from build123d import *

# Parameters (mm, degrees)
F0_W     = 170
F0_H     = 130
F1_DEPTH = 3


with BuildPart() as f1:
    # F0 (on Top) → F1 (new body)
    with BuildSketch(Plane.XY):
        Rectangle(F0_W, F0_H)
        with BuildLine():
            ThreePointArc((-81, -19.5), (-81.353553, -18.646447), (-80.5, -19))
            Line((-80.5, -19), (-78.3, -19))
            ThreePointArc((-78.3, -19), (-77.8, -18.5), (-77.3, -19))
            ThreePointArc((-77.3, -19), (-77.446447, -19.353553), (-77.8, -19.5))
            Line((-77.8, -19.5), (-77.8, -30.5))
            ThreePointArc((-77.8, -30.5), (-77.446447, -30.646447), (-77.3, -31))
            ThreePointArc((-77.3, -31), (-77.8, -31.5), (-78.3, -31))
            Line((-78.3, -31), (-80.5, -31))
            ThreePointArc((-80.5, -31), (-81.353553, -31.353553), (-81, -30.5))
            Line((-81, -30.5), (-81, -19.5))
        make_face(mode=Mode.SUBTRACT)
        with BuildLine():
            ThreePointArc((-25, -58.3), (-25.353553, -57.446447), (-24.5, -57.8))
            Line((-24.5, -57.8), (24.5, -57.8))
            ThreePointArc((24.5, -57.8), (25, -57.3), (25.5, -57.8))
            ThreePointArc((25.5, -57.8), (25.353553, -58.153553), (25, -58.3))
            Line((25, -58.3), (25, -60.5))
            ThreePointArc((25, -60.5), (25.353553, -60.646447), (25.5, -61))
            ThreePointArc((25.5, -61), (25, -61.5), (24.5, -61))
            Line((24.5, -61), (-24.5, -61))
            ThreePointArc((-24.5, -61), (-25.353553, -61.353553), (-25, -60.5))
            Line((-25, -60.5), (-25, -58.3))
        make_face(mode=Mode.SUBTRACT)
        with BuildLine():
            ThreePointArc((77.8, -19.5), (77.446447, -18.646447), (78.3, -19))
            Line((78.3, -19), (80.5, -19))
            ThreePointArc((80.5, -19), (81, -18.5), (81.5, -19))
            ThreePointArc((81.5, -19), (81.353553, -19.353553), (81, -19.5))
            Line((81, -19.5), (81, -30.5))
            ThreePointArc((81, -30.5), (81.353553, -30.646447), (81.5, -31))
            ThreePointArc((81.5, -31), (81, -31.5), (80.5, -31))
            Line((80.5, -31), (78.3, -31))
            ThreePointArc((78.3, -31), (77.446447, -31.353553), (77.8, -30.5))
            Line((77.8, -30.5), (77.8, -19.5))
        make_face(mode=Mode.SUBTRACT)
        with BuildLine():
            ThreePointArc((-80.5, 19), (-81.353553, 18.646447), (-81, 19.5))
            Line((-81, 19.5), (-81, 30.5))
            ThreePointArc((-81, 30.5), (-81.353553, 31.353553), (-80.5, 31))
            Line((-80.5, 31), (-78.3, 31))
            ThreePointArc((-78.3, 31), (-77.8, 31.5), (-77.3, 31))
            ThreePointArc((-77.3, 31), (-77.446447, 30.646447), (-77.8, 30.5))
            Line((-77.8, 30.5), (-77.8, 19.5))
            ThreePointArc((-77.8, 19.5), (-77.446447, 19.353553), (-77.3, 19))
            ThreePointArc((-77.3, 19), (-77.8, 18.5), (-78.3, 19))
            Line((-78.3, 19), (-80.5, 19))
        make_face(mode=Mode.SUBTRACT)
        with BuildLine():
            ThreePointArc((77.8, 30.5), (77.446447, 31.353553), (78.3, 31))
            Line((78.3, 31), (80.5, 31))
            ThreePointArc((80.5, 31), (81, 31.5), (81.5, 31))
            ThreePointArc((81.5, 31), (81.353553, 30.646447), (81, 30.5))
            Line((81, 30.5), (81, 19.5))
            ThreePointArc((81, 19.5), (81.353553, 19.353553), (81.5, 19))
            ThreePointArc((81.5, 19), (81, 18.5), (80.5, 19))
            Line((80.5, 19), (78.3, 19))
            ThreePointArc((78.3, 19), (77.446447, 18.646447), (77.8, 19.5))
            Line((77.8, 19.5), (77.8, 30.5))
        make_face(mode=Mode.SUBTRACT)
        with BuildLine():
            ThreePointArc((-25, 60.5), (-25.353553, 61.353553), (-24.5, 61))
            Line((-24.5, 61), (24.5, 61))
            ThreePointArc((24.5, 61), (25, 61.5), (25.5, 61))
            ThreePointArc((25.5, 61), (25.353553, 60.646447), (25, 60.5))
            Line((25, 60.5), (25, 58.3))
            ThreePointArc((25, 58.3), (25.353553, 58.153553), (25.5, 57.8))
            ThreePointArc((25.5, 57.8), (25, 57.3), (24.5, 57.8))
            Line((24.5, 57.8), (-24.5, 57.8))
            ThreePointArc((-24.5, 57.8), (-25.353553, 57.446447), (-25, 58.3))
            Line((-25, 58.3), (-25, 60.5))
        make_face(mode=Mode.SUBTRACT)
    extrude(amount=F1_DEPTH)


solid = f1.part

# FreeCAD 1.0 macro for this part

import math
import FreeCAD as App
import Part
import Sketcher

V = App.Vector
Q = App.Units.Quantity

doc = App.newDocument("Part")
body = doc.addObject("PartDesign::Body", "Body")

sketch1 = body.newObject("Sketcher::SketchObject", "Sketch")
sketch1.AttachmentSupport = (doc.getObject("XY_Plane"), [""])
sketch1.MapMode = "FlatFace"
sketch1.addGeometry(Part.LineSegment(V(-85, 65, 0), V(-85, -65, 0)), False)
sketch1.addGeometry(Part.LineSegment(V(-85, -65, 0), V(85, -65, 0)), False)
sketch1.addGeometry(Part.LineSegment(V(85, -65, 0), V(85, 65, 0)), False)
sketch1.addGeometry(Part.LineSegment(V(85, 65, 0), V(-85, 65, 0)), False)
sketch1.addGeometry(Part.LineSegment(V(-81, -30.5, 0), V(-81, -19.5, 0)), False)
sketch1.addGeometry(Part.ArcOfCircle(Part.Circle(V(-81, -19, 0), V(0, 0, 1), 0.5), math.radians(0), math.radians(270)), False)
sketch1.addGeometry(Part.LineSegment(V(-80.5, -19, 0), V(-78.3, -19, 0)), False)
sketch1.addGeometry(Part.ArcOfCircle(Part.Circle(V(-77.8, -19, 0), V(0, 0, 1), 0.5), math.radians(0), math.radians(180)), False)
sketch1.addGeometry(Part.ArcOfCircle(Part.Circle(V(-77.8, -19, 0), V(0, 0, 1), 0.5), math.radians(-90), math.radians(0)), False)
sketch1.addGeometry(Part.LineSegment(V(-77.8, -19.5, 0), V(-77.8, -30.5, 0)), False)
sketch1.addGeometry(Part.ArcOfCircle(Part.Circle(V(-77.8, -31, 0), V(0, 0, 1), 0.5), math.radians(0), math.radians(90)), False)
sketch1.addGeometry(Part.ArcOfCircle(Part.Circle(V(-77.8, -31, 0), V(0, 0, 1), 0.5), math.radians(180), math.radians(360)), False)
sketch1.addGeometry(Part.LineSegment(V(-78.3, -31, 0), V(-80.5, -31, 0)), False)
sketch1.addGeometry(Part.ArcOfCircle(Part.Circle(V(-81, -31, 0), V(0, 0, 1), 0.5), math.radians(90), math.radians(360)), False)
sketch1.addGeometry(Part.LineSegment(V(-25, -60.5, 0), V(-25, -58.3, 0)), False)
sketch1.addGeometry(Part.ArcOfCircle(Part.Circle(V(-25, -57.8, 0), V(0, 0, 1), 0.5), math.radians(0), math.radians(270)), False)
sketch1.addGeometry(Part.LineSegment(V(-24.5, -57.8, 0), V(24.5, -57.8, 0)), False)
sketch1.addGeometry(Part.ArcOfCircle(Part.Circle(V(25, -57.8, 0), V(0, 0, 1), 0.5), math.radians(0), math.radians(180)), False)
sketch1.addGeometry(Part.ArcOfCircle(Part.Circle(V(25, -57.8, 0), V(0, 0, 1), 0.5), math.radians(-90), math.radians(0)), False)
sketch1.addGeometry(Part.LineSegment(V(25, -58.3, 0), V(25, -60.5, 0)), False)
sketch1.addGeometry(Part.ArcOfCircle(Part.Circle(V(25, -61, 0), V(0, 0, 1), 0.5), math.radians(0), math.radians(90)), False)
sketch1.addGeometry(Part.ArcOfCircle(Part.Circle(V(25, -61, 0), V(0, 0, 1), 0.5), math.radians(180), math.radians(360)), False)
sketch1.addGeometry(Part.LineSegment(V(24.5, -61, 0), V(-24.5, -61, 0)), False)
sketch1.addGeometry(Part.ArcOfCircle(Part.Circle(V(-25, -61, 0), V(0, 0, 1), 0.5), math.radians(90), math.radians(360)), False)
sketch1.addGeometry(Part.LineSegment(V(77.8, -30.5, 0), V(77.8, -19.5, 0)), False)
sketch1.addGeometry(Part.ArcOfCircle(Part.Circle(V(77.8, -19, 0), V(0, 0, 1), 0.5), math.radians(0), math.radians(270)), False)
sketch1.addGeometry(Part.LineSegment(V(78.3, -19, 0), V(80.5, -19, 0)), False)
sketch1.addGeometry(Part.ArcOfCircle(Part.Circle(V(81, -19, 0), V(0, 0, 1), 0.5), math.radians(0), math.radians(180)), False)
sketch1.addGeometry(Part.ArcOfCircle(Part.Circle(V(81, -19, 0), V(0, 0, 1), 0.5), math.radians(-90), math.radians(0)), False)
sketch1.addGeometry(Part.LineSegment(V(81, -19.5, 0), V(81, -30.5, 0)), False)
sketch1.addGeometry(Part.ArcOfCircle(Part.Circle(V(81, -31, 0), V(0, 0, 1), 0.5), math.radians(0), math.radians(90)), False)
sketch1.addGeometry(Part.ArcOfCircle(Part.Circle(V(81, -31, 0), V(0, 0, 1), 0.5), math.radians(180), math.radians(360)), False)
sketch1.addGeometry(Part.LineSegment(V(80.5, -31, 0), V(78.3, -31, 0)), False)
sketch1.addGeometry(Part.ArcOfCircle(Part.Circle(V(77.8, -31, 0), V(0, 0, 1), 0.5), math.radians(90), math.radians(360)), False)
sketch1.addGeometry(Part.LineSegment(V(-78.3, 19, 0), V(-80.5, 19, 0)), False)
sketch1.addGeometry(Part.ArcOfCircle(Part.Circle(V(-81, 19, 0), V(0, 0, 1), 0.5), math.radians(90), math.radians(360)), False)
sketch1.addGeometry(Part.LineSegment(V(-81, 19.5, 0), V(-81, 30.5, 0)), False)
sketch1.addGeometry(Part.ArcOfCircle(Part.Circle(V(-81, 31, 0), V(0, 0, 1), 0.5), math.radians(0), math.radians(270)), False)
sketch1.addGeometry(Part.LineSegment(V(-80.5, 31, 0), V(-78.3, 31, 0)), False)
sketch1.addGeometry(Part.ArcOfCircle(Part.Circle(V(-77.8, 31, 0), V(0, 0, 1), 0.5), math.radians(0), math.radians(180)), False)
sketch1.addGeometry(Part.ArcOfCircle(Part.Circle(V(-77.8, 31, 0), V(0, 0, 1), 0.5), math.radians(-90), math.radians(0)), False)
sketch1.addGeometry(Part.LineSegment(V(-77.8, 30.5, 0), V(-77.8, 19.5, 0)), False)
sketch1.addGeometry(Part.ArcOfCircle(Part.Circle(V(-77.8, 19, 0), V(0, 0, 1), 0.5), math.radians(0), math.radians(90)), False)
sketch1.addGeometry(Part.ArcOfCircle(Part.Circle(V(-77.8, 19, 0), V(0, 0, 1), 0.5), math.radians(180), math.radians(360)), False)
sketch1.addGeometry(Part.LineSegment(V(77.8, 19.5, 0), V(77.8, 30.5, 0)), False)
sketch1.addGeometry(Part.ArcOfCircle(Part.Circle(V(77.8, 31, 0), V(0, 0, 1), 0.5), math.radians(0), math.radians(270)), False)
sketch1.addGeometry(Part.LineSegment(V(78.3, 31, 0), V(80.5, 31, 0)), False)
sketch1.addGeometry(Part.ArcOfCircle(Part.Circle(V(81, 31, 0), V(0, 0, 1), 0.5), math.radians(0), math.radians(180)), False)
sketch1.addGeometry(Part.ArcOfCircle(Part.Circle(V(81, 31, 0), V(0, 0, 1), 0.5), math.radians(-90), math.radians(0)), False)
sketch1.addGeometry(Part.LineSegment(V(81, 30.5, 0), V(81, 19.5, 0)), False)
sketch1.addGeometry(Part.ArcOfCircle(Part.Circle(V(81, 19, 0), V(0, 0, 1), 0.5), math.radians(0), math.radians(90)), False)
sketch1.addGeometry(Part.ArcOfCircle(Part.Circle(V(81, 19, 0), V(0, 0, 1), 0.5), math.radians(180), math.radians(360)), False)
sketch1.addGeometry(Part.LineSegment(V(80.5, 19, 0), V(78.3, 19, 0)), False)
sketch1.addGeometry(Part.ArcOfCircle(Part.Circle(V(77.8, 19, 0), V(0, 0, 1), 0.5), math.radians(90), math.radians(360)), False)
sketch1.addGeometry(Part.LineSegment(V(-25, 58.3, 0), V(-25, 60.5, 0)), False)
sketch1.addGeometry(Part.ArcOfCircle(Part.Circle(V(-25, 61, 0), V(0, 0, 1), 0.5), math.radians(0), math.radians(270)), False)
sketch1.addGeometry(Part.LineSegment(V(-24.5, 61, 0), V(24.5, 61, 0)), False)
sketch1.addGeometry(Part.ArcOfCircle(Part.Circle(V(25, 61, 0), V(0, 0, 1), 0.5), math.radians(0), math.radians(180)), False)
sketch1.addGeometry(Part.ArcOfCircle(Part.Circle(V(25, 61, 0), V(0, 0, 1), 0.5), math.radians(-90), math.radians(0)), False)
sketch1.addGeometry(Part.LineSegment(V(25, 60.5, 0), V(25, 58.3, 0)), False)
sketch1.addGeometry(Part.ArcOfCircle(Part.Circle(V(25, 57.8, 0), V(0, 0, 1), 0.5), math.radians(0), math.radians(90)), False)
sketch1.addGeometry(Part.ArcOfCircle(Part.Circle(V(25, 57.8, 0), V(0, 0, 1), 0.5), math.radians(180), math.radians(360)), False)
sketch1.addGeometry(Part.LineSegment(V(24.5, 57.8, 0), V(-24.5, 57.8, 0)), False)
sketch1.addGeometry(Part.ArcOfCircle(Part.Circle(V(-25, 57.8, 0), V(0, 0, 1), 0.5), math.radians(90), math.radians(360)), False)
sketch1.addConstraint(Sketcher.Constraint("Coincident", 0, 2, 1, 1))
sketch1.addConstraint(Sketcher.Constraint("Coincident", 1, 2, 2, 1))
sketch1.addConstraint(Sketcher.Constraint("Coincident", 2, 2, 3, 1))
sketch1.addConstraint(Sketcher.Constraint("Coincident", 3, 2, 0, 1))
sketch1.addConstraint(Sketcher.Constraint("Coincident", 4, 2, 5, 2))
sketch1.addConstraint(Sketcher.Constraint("Coincident", 5, 1, 6, 1))
sketch1.addConstraint(Sketcher.Constraint("Coincident", 6, 2, 7, 2))
sketch1.addConstraint(Sketcher.Constraint("Coincident", 7, 1, 8, 2))
sketch1.addConstraint(Sketcher.Constraint("Coincident", 8, 1, 9, 1))
sketch1.addConstraint(Sketcher.Constraint("Coincident", 9, 2, 10, 2))
sketch1.addConstraint(Sketcher.Constraint("Coincident", 10, 1, 11, 2))
sketch1.addConstraint(Sketcher.Constraint("Coincident", 11, 1, 12, 1))
sketch1.addConstraint(Sketcher.Constraint("Coincident", 12, 2, 13, 2))
sketch1.addConstraint(Sketcher.Constraint("Coincident", 13, 1, 4, 1))
sketch1.addConstraint(Sketcher.Constraint("Coincident", 14, 2, 15, 2))
sketch1.addConstraint(Sketcher.Constraint("Coincident", 15, 1, 16, 1))
sketch1.addConstraint(Sketcher.Constraint("Coincident", 16, 2, 17, 2))
sketch1.addConstraint(Sketcher.Constraint("Coincident", 17, 1, 18, 2))
sketch1.addConstraint(Sketcher.Constraint("Coincident", 18, 1, 19, 1))
sketch1.addConstraint(Sketcher.Constraint("Coincident", 19, 2, 20, 2))
sketch1.addConstraint(Sketcher.Constraint("Coincident", 20, 1, 21, 2))
sketch1.addConstraint(Sketcher.Constraint("Coincident", 21, 1, 22, 1))
sketch1.addConstraint(Sketcher.Constraint("Coincident", 22, 2, 23, 2))
sketch1.addConstraint(Sketcher.Constraint("Coincident", 23, 1, 14, 1))
sketch1.addConstraint(Sketcher.Constraint("Coincident", 24, 2, 25, 2))
sketch1.addConstraint(Sketcher.Constraint("Coincident", 25, 1, 26, 1))
sketch1.addConstraint(Sketcher.Constraint("Coincident", 26, 2, 27, 2))
sketch1.addConstraint(Sketcher.Constraint("Coincident", 27, 1, 28, 2))
sketch1.addConstraint(Sketcher.Constraint("Coincident", 28, 1, 29, 1))
sketch1.addConstraint(Sketcher.Constraint("Coincident", 29, 2, 30, 2))
sketch1.addConstraint(Sketcher.Constraint("Coincident", 30, 1, 31, 2))
sketch1.addConstraint(Sketcher.Constraint("Coincident", 31, 1, 32, 1))
sketch1.addConstraint(Sketcher.Constraint("Coincident", 32, 2, 33, 2))
sketch1.addConstraint(Sketcher.Constraint("Coincident", 33, 1, 24, 1))
sketch1.addConstraint(Sketcher.Constraint("Coincident", 34, 2, 35, 2))
sketch1.addConstraint(Sketcher.Constraint("Coincident", 35, 1, 36, 1))
sketch1.addConstraint(Sketcher.Constraint("Coincident", 36, 2, 37, 2))
sketch1.addConstraint(Sketcher.Constraint("Coincident", 37, 1, 38, 1))
sketch1.addConstraint(Sketcher.Constraint("Coincident", 38, 2, 39, 2))
sketch1.addConstraint(Sketcher.Constraint("Coincident", 39, 1, 40, 2))
sketch1.addConstraint(Sketcher.Constraint("Coincident", 40, 1, 41, 1))
sketch1.addConstraint(Sketcher.Constraint("Coincident", 41, 2, 42, 2))
sketch1.addConstraint(Sketcher.Constraint("Coincident", 42, 1, 43, 2))
sketch1.addConstraint(Sketcher.Constraint("Coincident", 43, 1, 34, 1))
sketch1.addConstraint(Sketcher.Constraint("Coincident", 44, 2, 45, 2))
sketch1.addConstraint(Sketcher.Constraint("Coincident", 45, 1, 46, 1))
sketch1.addConstraint(Sketcher.Constraint("Coincident", 46, 2, 47, 2))
sketch1.addConstraint(Sketcher.Constraint("Coincident", 47, 1, 48, 2))
sketch1.addConstraint(Sketcher.Constraint("Coincident", 48, 1, 49, 1))
sketch1.addConstraint(Sketcher.Constraint("Coincident", 49, 2, 50, 2))
sketch1.addConstraint(Sketcher.Constraint("Coincident", 50, 1, 51, 2))
sketch1.addConstraint(Sketcher.Constraint("Coincident", 51, 1, 52, 1))
sketch1.addConstraint(Sketcher.Constraint("Coincident", 52, 2, 53, 2))
sketch1.addConstraint(Sketcher.Constraint("Coincident", 53, 1, 44, 1))
sketch1.addConstraint(Sketcher.Constraint("Coincident", 54, 2, 55, 2))
sketch1.addConstraint(Sketcher.Constraint("Coincident", 55, 1, 56, 1))
sketch1.addConstraint(Sketcher.Constraint("Coincident", 56, 2, 57, 2))
sketch1.addConstraint(Sketcher.Constraint("Coincident", 57, 1, 58, 2))
sketch1.addConstraint(Sketcher.Constraint("Coincident", 58, 1, 59, 1))
sketch1.addConstraint(Sketcher.Constraint("Coincident", 59, 2, 60, 2))
sketch1.addConstraint(Sketcher.Constraint("Coincident", 60, 1, 61, 2))
sketch1.addConstraint(Sketcher.Constraint("Coincident", 61, 1, 62, 1))
sketch1.addConstraint(Sketcher.Constraint("Coincident", 62, 2, 63, 2))
sketch1.addConstraint(Sketcher.Constraint("Coincident", 63, 1, 54, 1))
sketch1.addConstraint(Sketcher.Constraint("Vertical", 0))
sketch1.addConstraint(Sketcher.Constraint("Horizontal", 1))
sketch1.addConstraint(Sketcher.Constraint("Vertical", 2))
sketch1.addConstraint(Sketcher.Constraint("Horizontal", 3))
sketch1.addConstraint(Sketcher.Constraint("Vertical", 4))
sketch1.addConstraint(Sketcher.Constraint("Horizontal", 6))
sketch1.addConstraint(Sketcher.Constraint("Vertical", 9))
sketch1.addConstraint(Sketcher.Constraint("Horizontal", 12))
sketch1.addConstraint(Sketcher.Constraint("Vertical", 14))
sketch1.addConstraint(Sketcher.Constraint("Horizontal", 16))
sketch1.addConstraint(Sketcher.Constraint("Vertical", 19))
sketch1.addConstraint(Sketcher.Constraint("Horizontal", 22))
sketch1.addConstraint(Sketcher.Constraint("Vertical", 24))
sketch1.addConstraint(Sketcher.Constraint("Horizontal", 26))
sketch1.addConstraint(Sketcher.Constraint("Vertical", 29))
sketch1.addConstraint(Sketcher.Constraint("Horizontal", 32))
sketch1.addConstraint(Sketcher.Constraint("Horizontal", 34))
sketch1.addConstraint(Sketcher.Constraint("Vertical", 36))
sketch1.addConstraint(Sketcher.Constraint("Horizontal", 38))
sketch1.addConstraint(Sketcher.Constraint("Vertical", 41))
sketch1.addConstraint(Sketcher.Constraint("Vertical", 44))
sketch1.addConstraint(Sketcher.Constraint("Horizontal", 46))
sketch1.addConstraint(Sketcher.Constraint("Vertical", 49))
sketch1.addConstraint(Sketcher.Constraint("Horizontal", 52))
sketch1.addConstraint(Sketcher.Constraint("Vertical", 54))
sketch1.addConstraint(Sketcher.Constraint("Horizontal", 56))
sketch1.addConstraint(Sketcher.Constraint("Vertical", 59))
sketch1.addConstraint(Sketcher.Constraint("Horizontal", 62))
sketch1.addConstraint(Sketcher.Constraint("Coincident", 8, 3, 7, 3))
sketch1.addConstraint(Sketcher.Constraint("Coincident", 11, 3, 10, 3))
sketch1.addConstraint(Sketcher.Constraint("Coincident", 18, 3, 17, 3))
sketch1.addConstraint(Sketcher.Constraint("Coincident", 21, 3, 20, 3))
sketch1.addConstraint(Sketcher.Constraint("Coincident", 28, 3, 27, 3))
sketch1.addConstraint(Sketcher.Constraint("Coincident", 31, 3, 30, 3))
sketch1.addConstraint(Sketcher.Constraint("Coincident", 40, 3, 39, 3))
sketch1.addConstraint(Sketcher.Constraint("Coincident", 43, 3, 42, 3))
sketch1.addConstraint(Sketcher.Constraint("Coincident", 48, 3, 47, 3))
sketch1.addConstraint(Sketcher.Constraint("Coincident", 51, 3, 50, 3))
sketch1.addConstraint(Sketcher.Constraint("Coincident", 58, 3, 57, 3))
sketch1.addConstraint(Sketcher.Constraint("Coincident", 61, 3, 60, 3))
sketch1.addConstraint(Sketcher.Constraint("Equal", 5, 7))
sketch1.addConstraint(Sketcher.Constraint("Equal", 8, 10))
sketch1.addConstraint(Sketcher.Constraint("Equal", 11, 13))
sketch1.addConstraint(Sketcher.Constraint("Equal", 13, 15))
sketch1.addConstraint(Sketcher.Constraint("Equal", 15, 17))
sketch1.addConstraint(Sketcher.Constraint("Equal", 18, 20))
sketch1.addConstraint(Sketcher.Constraint("Equal", 21, 23))
sketch1.addConstraint(Sketcher.Constraint("Equal", 23, 25))
sketch1.addConstraint(Sketcher.Constraint("Equal", 25, 27))
sketch1.addConstraint(Sketcher.Constraint("Equal", 28, 30))
sketch1.addConstraint(Sketcher.Constraint("Equal", 31, 33))
sketch1.addConstraint(Sketcher.Constraint("Equal", 33, 35))
sketch1.addConstraint(Sketcher.Constraint("Equal", 35, 37))
sketch1.addConstraint(Sketcher.Constraint("Equal", 37, 39))
sketch1.addConstraint(Sketcher.Constraint("Equal", 40, 42))
sketch1.addConstraint(Sketcher.Constraint("Equal", 43, 45))
sketch1.addConstraint(Sketcher.Constraint("Equal", 45, 47))
sketch1.addConstraint(Sketcher.Constraint("Equal", 48, 50))
sketch1.addConstraint(Sketcher.Constraint("Equal", 51, 53))
sketch1.addConstraint(Sketcher.Constraint("Equal", 53, 55))
sketch1.addConstraint(Sketcher.Constraint("Equal", 55, 57))
sketch1.addConstraint(Sketcher.Constraint("Equal", 58, 60))
sketch1.addConstraint(Sketcher.Constraint("Equal", 61, 63))
sketch1.addConstraint(Sketcher.Constraint("Symmetric", 27, 3, 35, 3, -1, 1))
sketch1.addConstraint(Sketcher.Constraint("Symmetric", 30, 3, 37, 3, -1, 1))
sketch1.addConstraint(Sketcher.Constraint("Symmetric", 33, 3, 39, 3, -1, 1))
sketch1.addConstraint(Sketcher.Constraint("Symmetric", 25, 3, 42, 3, -1, 1))
sketch1.addConstraint(Sketcher.Constraint("Symmetric", 10, 3, 45, 3, -1, 1))
sketch1.addConstraint(Sketcher.Constraint("Symmetric", 13, 3, 47, 3, -1, 1))
sketch1.addConstraint(Sketcher.Constraint("Symmetric", 5, 3, 50, 3, -1, 1))
sketch1.addConstraint(Sketcher.Constraint("Symmetric", 7, 3, 53, 3, -1, 1))
sketch1.addConstraint(Sketcher.Constraint("Symmetric", 20, 3, 55, 3, -1, 1))
sketch1.addConstraint(Sketcher.Constraint("Symmetric", 23, 3, 57, 3, -1, 1))
sketch1.addConstraint(Sketcher.Constraint("Symmetric", 15, 3, 60, 3, -1, 1))
sketch1.addConstraint(Sketcher.Constraint("Symmetric", 17, 3, 63, 3, -1, 1))
sketch1.addConstraint(Sketcher.Constraint("Symmetric", 0, 2, 2, 2, -1, 1))
sketch1.addConstraint(Sketcher.Constraint("Symmetric", 15, 3, 17, 3, -2))
sketch1.addConstraint(Sketcher.Constraint("Symmetric", 20, 3, 23, 3, -2))
sketch1.addConstraint(Sketcher.Constraint("Symmetric", 7, 3, 25, 3, -2))
sketch1.addConstraint(Sketcher.Constraint("Symmetric", 5, 3, 27, 3, -2))
sketch1.addConstraint(Sketcher.Constraint("Symmetric", 13, 3, 30, 3, -2))
sketch1.addConstraint(Sketcher.Constraint("Symmetric", 10, 3, 33, 3, -2))
sketch1.addConstraint(Sketcher.Constraint("Horizontal", 5, 3, 7, 3))
sketch1.addConstraint(Sketcher.Constraint("Horizontal", 11, 3, 13, 3))
sketch1.addConstraint(Sketcher.Constraint("Horizontal", 28, 3, 5, 1))
sketch1.addConstraint(Sketcher.Constraint("Horizontal", 6, 2, 7, 1))
sketch1.addConstraint(Sketcher.Constraint("Horizontal", 33, 3, 10, 1))
sketch1.addConstraint(Sketcher.Constraint("Horizontal", 10, 1, 11, 1))
sketch1.addConstraint(Sketcher.Constraint("Horizontal", 18, 3, 15, 1))
sketch1.addConstraint(Sketcher.Constraint("Horizontal", 16, 2, 17, 1))
sketch1.addConstraint(Sketcher.Constraint("Horizontal", 23, 3, 20, 1))
sketch1.addConstraint(Sketcher.Constraint("Horizontal", 20, 1, 21, 1))
sketch1.addConstraint(Sketcher.Constraint("Horizontal", 7, 1, 25, 1))
sketch1.addConstraint(Sketcher.Constraint("Horizontal", 26, 2, 27, 1))
sketch1.addConstraint(Sketcher.Constraint("Horizontal", 12, 2, 30, 1))
sketch1.addConstraint(Sketcher.Constraint("Horizontal", 30, 1, 31, 1))
sketch1.addConstraint(Sketcher.Constraint("Horizontal", 53, 3, 34, 2))
sketch1.addConstraint(Sketcher.Constraint("Horizontal", 48, 3, 37, 1))
sketch1.addConstraint(Sketcher.Constraint("Horizontal", 38, 2, 39, 1))
sketch1.addConstraint(Sketcher.Constraint("Horizontal", 34, 2, 42, 1))
sketch1.addConstraint(Sketcher.Constraint("Horizontal", 39, 1, 45, 1))
sketch1.addConstraint(Sketcher.Constraint("Horizontal", 46, 2, 47, 1))
sketch1.addConstraint(Sketcher.Constraint("Horizontal", 43, 1, 50, 1))
sketch1.addConstraint(Sketcher.Constraint("Horizontal", 50, 1, 51, 1))
sketch1.addConstraint(Sketcher.Constraint("Horizontal", 58, 3, 55, 1))
sketch1.addConstraint(Sketcher.Constraint("Horizontal", 56, 2, 57, 1))
sketch1.addConstraint(Sketcher.Constraint("Horizontal", 63, 3, 60, 1))
sketch1.addConstraint(Sketcher.Constraint("Horizontal", 60, 1, 61, 1))
sketch1.addConstraint(Sketcher.Constraint("Vertical", 8, 3, 10, 3))
sketch1.addConstraint(Sketcher.Constraint("Vertical", 5, 3, 13, 3))
sketch1.addConstraint(Sketcher.Constraint("Vertical", 18, 3, 20, 3))
sketch1.addConstraint(Sketcher.Constraint("Vertical", 37, 3, 4, 2))
sketch1.addConstraint(Sketcher.Constraint("Vertical", 43, 3, 8, 1))
sketch1.addConstraint(Sketcher.Constraint("Vertical", 63, 3, 14, 2))
sketch1.addConstraint(Sketcher.Constraint("Vertical", 61, 3, 18, 1))
sketch1.addConstraint(Sketcher.Constraint("Vertical", 53, 3, 24, 2))
sketch1.addConstraint(Sketcher.Constraint("Vertical", 51, 3, 28, 1))
sketch1.addConstraint(Sketcher.Constraint("Vertical", 13, 1, 35, 1))
sketch1.addConstraint(Sketcher.Constraint("Vertical", 9, 2, 40, 1))
sketch1.addConstraint(Sketcher.Constraint("Vertical", 33, 1, 44, 2))
sketch1.addConstraint(Sketcher.Constraint("Vertical", 29, 2, 48, 1))
sketch1.addConstraint(Sketcher.Constraint("Vertical", 23, 1, 54, 2))
sketch1.addConstraint(Sketcher.Constraint("Vertical", 19, 2, 58, 1))
sketch1.addConstraint(Sketcher.Constraint("Equal", 52, 14))
sketch1.addConstraint(Sketcher.Constraint("Radius", 5, Q("0.5 mm")))
sketch1.addConstraint(Sketcher.Constraint("DistanceX", 1, 1, 1, 2, Q("170 mm")))
sketch1.addConstraint(Sketcher.Constraint("DistanceX", 16, 1, 16, 2, Q("49 mm")))
sketch1.addConstraint(Sketcher.Constraint("DistanceY", 0, 2, 0, 1, Q("130 mm")))
sketch1.addConstraint(Sketcher.Constraint("DistanceY", 4, 1, 4, 2, Q("11 mm")))
sketch1.addConstraint(Sketcher.Constraint("DistanceX", 6, 1, 6, 2, Q("2.2 mm")))
sketch1.addConstraint(Sketcher.Constraint("DistanceX", 5, 3, -1, 1, Q("81 mm")))
sketch1.addConstraint(Sketcher.Constraint("DistanceY", 5, 3, -1, 1, Q("19 mm")))
sketch1.addConstraint(Sketcher.Constraint("DistanceY", 20, 3, -1, 1, Q("61.000001 mm")))
pad1 = body.newObject("PartDesign::Pad", "Pad")
pad1.Profile = sketch1
pad1.Length = 3

doc.recompute()
